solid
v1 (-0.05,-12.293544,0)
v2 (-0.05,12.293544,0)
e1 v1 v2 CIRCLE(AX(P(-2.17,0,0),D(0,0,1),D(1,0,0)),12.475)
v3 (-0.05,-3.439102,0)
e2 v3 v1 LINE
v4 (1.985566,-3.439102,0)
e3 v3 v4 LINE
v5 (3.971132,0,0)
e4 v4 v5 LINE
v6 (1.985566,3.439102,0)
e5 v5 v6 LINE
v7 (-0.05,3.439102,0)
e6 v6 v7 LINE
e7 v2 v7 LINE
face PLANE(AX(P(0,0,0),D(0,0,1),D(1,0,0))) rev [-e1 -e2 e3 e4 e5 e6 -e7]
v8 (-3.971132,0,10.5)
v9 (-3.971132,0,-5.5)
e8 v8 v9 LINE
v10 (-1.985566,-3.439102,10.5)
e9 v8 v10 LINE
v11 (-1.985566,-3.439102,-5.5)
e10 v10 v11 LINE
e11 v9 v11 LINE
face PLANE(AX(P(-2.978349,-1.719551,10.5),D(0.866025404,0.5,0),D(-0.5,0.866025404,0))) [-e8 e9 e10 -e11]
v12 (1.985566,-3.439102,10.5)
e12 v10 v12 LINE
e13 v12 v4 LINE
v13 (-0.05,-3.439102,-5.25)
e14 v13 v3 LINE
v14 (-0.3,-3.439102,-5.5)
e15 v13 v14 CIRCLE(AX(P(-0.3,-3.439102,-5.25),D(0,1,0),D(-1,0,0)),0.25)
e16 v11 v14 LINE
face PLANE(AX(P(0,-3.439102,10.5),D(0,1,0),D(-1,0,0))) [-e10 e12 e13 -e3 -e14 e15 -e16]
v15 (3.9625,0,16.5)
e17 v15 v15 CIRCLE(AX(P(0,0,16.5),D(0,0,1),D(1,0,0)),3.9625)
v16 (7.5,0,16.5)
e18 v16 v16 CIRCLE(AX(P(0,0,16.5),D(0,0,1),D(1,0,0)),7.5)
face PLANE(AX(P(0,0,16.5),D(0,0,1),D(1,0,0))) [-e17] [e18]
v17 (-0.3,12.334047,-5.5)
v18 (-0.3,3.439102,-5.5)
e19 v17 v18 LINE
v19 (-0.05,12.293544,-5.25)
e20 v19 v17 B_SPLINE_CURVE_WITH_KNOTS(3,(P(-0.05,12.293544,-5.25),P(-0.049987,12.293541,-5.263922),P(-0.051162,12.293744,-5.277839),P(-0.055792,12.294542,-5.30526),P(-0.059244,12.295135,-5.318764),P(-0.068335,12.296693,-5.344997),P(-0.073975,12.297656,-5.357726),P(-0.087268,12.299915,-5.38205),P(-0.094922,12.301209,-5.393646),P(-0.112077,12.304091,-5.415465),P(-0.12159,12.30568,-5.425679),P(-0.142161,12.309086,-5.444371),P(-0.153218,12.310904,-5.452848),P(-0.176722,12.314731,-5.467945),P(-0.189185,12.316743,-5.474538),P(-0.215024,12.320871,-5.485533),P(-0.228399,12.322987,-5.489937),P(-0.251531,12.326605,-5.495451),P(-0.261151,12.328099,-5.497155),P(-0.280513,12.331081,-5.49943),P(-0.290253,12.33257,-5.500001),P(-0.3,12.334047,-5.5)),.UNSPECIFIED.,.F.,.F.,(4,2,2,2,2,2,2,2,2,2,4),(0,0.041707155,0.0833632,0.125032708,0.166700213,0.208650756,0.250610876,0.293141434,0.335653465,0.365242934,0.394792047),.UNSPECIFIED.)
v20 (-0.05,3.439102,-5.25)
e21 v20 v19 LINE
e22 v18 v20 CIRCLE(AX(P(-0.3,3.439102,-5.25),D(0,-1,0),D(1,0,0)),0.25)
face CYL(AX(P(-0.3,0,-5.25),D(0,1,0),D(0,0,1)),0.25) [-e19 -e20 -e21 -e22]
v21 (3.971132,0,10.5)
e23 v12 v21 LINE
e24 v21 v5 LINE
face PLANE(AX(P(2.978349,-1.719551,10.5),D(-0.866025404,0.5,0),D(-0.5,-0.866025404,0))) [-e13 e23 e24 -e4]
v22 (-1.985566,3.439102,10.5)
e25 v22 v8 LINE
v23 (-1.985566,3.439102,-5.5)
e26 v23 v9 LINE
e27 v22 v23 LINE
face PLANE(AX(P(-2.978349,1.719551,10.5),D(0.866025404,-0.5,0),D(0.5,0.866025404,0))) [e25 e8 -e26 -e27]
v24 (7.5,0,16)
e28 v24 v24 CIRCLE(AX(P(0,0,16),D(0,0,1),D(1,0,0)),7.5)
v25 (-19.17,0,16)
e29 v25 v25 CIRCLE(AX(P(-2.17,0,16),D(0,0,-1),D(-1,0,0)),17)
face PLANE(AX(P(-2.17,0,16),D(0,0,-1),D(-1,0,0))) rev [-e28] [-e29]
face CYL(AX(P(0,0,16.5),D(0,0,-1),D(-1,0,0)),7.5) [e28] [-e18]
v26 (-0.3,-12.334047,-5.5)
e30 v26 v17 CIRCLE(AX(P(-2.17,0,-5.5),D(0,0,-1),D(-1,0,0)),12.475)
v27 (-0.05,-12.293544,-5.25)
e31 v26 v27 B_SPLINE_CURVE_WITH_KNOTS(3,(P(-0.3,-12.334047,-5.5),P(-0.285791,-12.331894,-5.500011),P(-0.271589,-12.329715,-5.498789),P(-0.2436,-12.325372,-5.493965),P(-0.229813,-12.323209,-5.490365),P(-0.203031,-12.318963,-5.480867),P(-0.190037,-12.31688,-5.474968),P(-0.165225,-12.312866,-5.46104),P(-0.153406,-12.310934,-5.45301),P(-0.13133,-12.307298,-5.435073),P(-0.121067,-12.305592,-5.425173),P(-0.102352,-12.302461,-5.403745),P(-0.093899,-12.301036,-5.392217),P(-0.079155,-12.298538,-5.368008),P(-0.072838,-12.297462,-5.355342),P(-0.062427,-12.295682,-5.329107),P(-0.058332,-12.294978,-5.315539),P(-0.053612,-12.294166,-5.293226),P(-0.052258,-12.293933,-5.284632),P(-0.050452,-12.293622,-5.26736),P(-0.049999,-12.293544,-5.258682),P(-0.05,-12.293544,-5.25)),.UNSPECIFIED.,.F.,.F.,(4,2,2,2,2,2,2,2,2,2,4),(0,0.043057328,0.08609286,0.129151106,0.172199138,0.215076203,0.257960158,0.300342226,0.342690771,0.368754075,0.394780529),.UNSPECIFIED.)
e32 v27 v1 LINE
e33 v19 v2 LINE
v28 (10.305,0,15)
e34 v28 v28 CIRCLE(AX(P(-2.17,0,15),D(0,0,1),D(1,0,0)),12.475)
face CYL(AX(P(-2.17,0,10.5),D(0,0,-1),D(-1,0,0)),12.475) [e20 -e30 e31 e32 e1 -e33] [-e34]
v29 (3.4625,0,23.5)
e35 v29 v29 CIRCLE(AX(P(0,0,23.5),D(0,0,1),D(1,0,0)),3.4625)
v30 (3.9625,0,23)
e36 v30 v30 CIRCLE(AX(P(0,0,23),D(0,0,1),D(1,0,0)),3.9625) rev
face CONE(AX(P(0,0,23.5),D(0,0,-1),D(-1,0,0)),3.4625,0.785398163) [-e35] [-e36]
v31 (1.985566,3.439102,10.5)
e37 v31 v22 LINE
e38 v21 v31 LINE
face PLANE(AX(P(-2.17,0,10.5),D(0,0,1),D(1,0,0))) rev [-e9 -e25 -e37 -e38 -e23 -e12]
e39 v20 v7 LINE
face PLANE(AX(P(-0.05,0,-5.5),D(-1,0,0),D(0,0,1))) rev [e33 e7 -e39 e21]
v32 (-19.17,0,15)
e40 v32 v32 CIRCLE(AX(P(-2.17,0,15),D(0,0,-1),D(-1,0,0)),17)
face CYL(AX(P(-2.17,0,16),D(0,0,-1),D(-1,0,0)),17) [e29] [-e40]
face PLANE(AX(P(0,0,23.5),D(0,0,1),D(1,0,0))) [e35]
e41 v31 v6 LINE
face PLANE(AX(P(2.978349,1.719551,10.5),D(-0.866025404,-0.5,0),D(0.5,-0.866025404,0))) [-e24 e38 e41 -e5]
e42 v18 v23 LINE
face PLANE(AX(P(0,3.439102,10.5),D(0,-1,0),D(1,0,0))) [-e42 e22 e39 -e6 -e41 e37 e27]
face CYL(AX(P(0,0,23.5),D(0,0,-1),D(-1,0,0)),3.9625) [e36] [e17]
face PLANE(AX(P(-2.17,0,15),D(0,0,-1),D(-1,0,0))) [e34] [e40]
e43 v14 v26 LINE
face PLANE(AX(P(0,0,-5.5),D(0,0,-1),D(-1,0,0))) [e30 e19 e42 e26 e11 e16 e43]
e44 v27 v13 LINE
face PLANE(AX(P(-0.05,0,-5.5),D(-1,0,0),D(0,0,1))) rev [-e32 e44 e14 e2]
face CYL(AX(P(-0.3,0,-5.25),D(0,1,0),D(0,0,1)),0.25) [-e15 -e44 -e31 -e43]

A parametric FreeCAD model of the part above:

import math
import FreeCAD as App
import Part
import Sketcher
Q = App.Units.Quantity


def edges_at(feature, points):
    """Names of the edges that pass closest to the given points."""
    edges = feature.Shape.Edges
    near = lambda p: min(range(len(edges)), key=lambda i: edges[i].distToShape(Part.Vertex(*p))[0])
    return sorted({f"Edge{near(p) + 1}" for p in points})

doc = App.newDocument("Part")
body = doc.addObject("PartDesign::Body", "Body")

sketch1 = body.newObject("Sketcher::SketchObject", "Sketch")
sketch1.AttachmentSupport = (doc.getObject("XY_Plane"), [""])
sketch1.MapMode = "FlatFace"
sketch1.addGeometry(Part.Circle(App.Vector(-2.2, 0, 0), App.Vector(0, 0, 1), 12.5), False)
sketch1.addGeometry(Part.LineSegment(App.Vector(-4, 0, 0), App.Vector(-2, 3.4, 0)), False)
sketch1.addGeometry(Part.LineSegment(App.Vector(-2, 3.4, 0), App.Vector(2, 3.4, 0)), False)
sketch1.addGeometry(Part.LineSegment(App.Vector(2, 3.4, 0), App.Vector(4, 0, 0)), False)
sketch1.addGeometry(Part.LineSegment(App.Vector(4, 0, 0), App.Vector(2, -3.4, 0)), False)
sketch1.addGeometry(Part.LineSegment(App.Vector(2, -3.4, 0), App.Vector(-2, -3.4, 0)), False)
sketch1.addGeometry(Part.LineSegment(App.Vector(-2, -3.4, 0), App.Vector(-4, 0, 0)), False)
sketch1.addConstraint(Sketcher.Constraint("Coincident", 1, 2, 2, 1))
sketch1.addConstraint(Sketcher.Constraint("Coincident", 2, 2, 3, 1))
sketch1.addConstraint(Sketcher.Constraint("Coincident", 3, 2, 4, 1))
sketch1.addConstraint(Sketcher.Constraint("Coincident", 4, 2, 5, 1))
sketch1.addConstraint(Sketcher.Constraint("Coincident", 5, 2, 6, 1))
sketch1.addConstraint(Sketcher.Constraint("Coincident", 6, 2, 1, 1))
sketch1.addConstraint(Sketcher.Constraint("Horizontal", 2))
sketch1.addConstraint(Sketcher.Constraint("Horizontal", 5))
sketch1.addConstraint(Sketcher.Constraint("Symmetric", 1, 2, 4, 2, -1, 1))
sketch1.addConstraint(Sketcher.Constraint("Symmetric", 3, 2, 6, 2, -1, 1))
sketch1.addConstraint(Sketcher.Constraint("PointOnObject", 0, 3, -1))
sketch1.addConstraint(Sketcher.Constraint("PointOnObject", 3, 2, -1))
sketch1.addConstraint(Sketcher.Constraint("Parallel", 3, 6))
sketch1.addConstraint(Sketcher.Constraint("Vertical", 2, 2, 4, 2))
sketch1.addConstraint(Sketcher.Constraint("Diameter", 0, 24.95))
sketch1.addConstraint(Sketcher.Constraint("Angle", 1, Q("60 deg")))
sketch1.addConstraint(Sketcher.Constraint("DistanceX", 0, 3, -1, 1, 2.17))
sketch1.addConstraint(Sketcher.Constraint("DistanceY", -1, 1, 1, 2, 3.439102))
sketch1.addConstraint(Sketcher.Constraint("DistanceX", 1, 2, 3, 2, 5.956699))
pad1 = body.newObject("PartDesign::Pad", "Pad")
pad1.Profile = sketch1
pad1.Length = 10.5

sketch2 = body.newObject("Sketcher::SketchObject", "Sketch001")
sketch2.AttachmentSupport = (doc.getObject("XY_Plane"), [""])
sketch2.MapMode = "FlatFace"
sketch2.AttachmentOffset = App.Placement(App.Vector(0, 0, 10.5), App.Rotation())
sketch2.addGeometry(Part.Circle(App.Vector(-2, 0, 0), App.Vector(0, 0, 1), 12), False)
sketch2.addConstraint(Sketcher.Constraint("PointOnObject", 0, 3, -1))
sketch2.addConstraint(Sketcher.Constraint("Diameter", 0, 24.95))
sketch2.addConstraint(Sketcher.Constraint("DistanceX", 0, 3, -1, 1, 2.17))
pad2 = body.newObject("PartDesign::Pad", "Pad001")
pad2.Profile = sketch2
pad2.Length = 4.5

sketch3 = body.newObject("Sketcher::SketchObject", "Sketch002")
sketch3.AttachmentSupport = (doc.getObject("XY_Plane"), [""])
sketch3.MapMode = "FlatFace"
sketch3.AttachmentOffset = App.Placement(App.Vector(0, 0, 15), App.Rotation())
sketch3.addGeometry(Part.Circle(App.Vector(-2, 0, 0), App.Vector(0, 0, 1), 17), False)
sketch3.addConstraint(Sketcher.Constraint("PointOnObject", 0, 3, -1))
sketch3.addConstraint(Sketcher.Constraint("Diameter", 0, 34.0))
sketch3.addConstraint(Sketcher.Constraint("DistanceX", 0, 3, -1, 1, 2.17))
pad3 = body.newObject("PartDesign::Pad", "Pad002")
pad3.Profile = sketch3
pad3.Length = 1

sketch4 = body.newObject("Sketcher::SketchObject", "Sketch003")
sketch4.AttachmentSupport = (doc.getObject("XY_Plane"), [""])
sketch4.MapMode = "FlatFace"
sketch4.AttachmentOffset = App.Placement(App.Vector(0, 0, 16), App.Rotation())
sketch4.addGeometry(Part.Circle(App.Vector(0, 0, 0), App.Vector(0, 0, 1), 8), False)
sketch4.addConstraint(Sketcher.Constraint("Coincident", 0, 3, -1, 1))
sketch4.addConstraint(Sketcher.Constraint("Diameter", 0, 15.0))
pad4 = body.newObject("PartDesign::Pad", "Pad003")
pad4.Profile = sketch4
pad4.Length = 0.5

sketch5 = body.newObject("Sketcher::SketchObject", "Sketch004")
sketch5.AttachmentSupport = (doc.getObject("XY_Plane"), [""])
sketch5.MapMode = "FlatFace"
sketch5.AttachmentOffset = App.Placement(App.Vector(0, 0, 16.5), App.Rotation())
sketch5.addGeometry(Part.Circle(App.Vector(0, 0, 0), App.Vector(0, 0, 1), 4), False)
sketch5.addConstraint(Sketcher.Constraint("Coincident", 0, 3, -1, 1))
sketch5.addConstraint(Sketcher.Constraint("Diameter", 0, 7.925))
pad5 = body.newObject("PartDesign::Pad", "Pad004")
pad5.Profile = sketch5
pad5.Length = 7

sketch6 = body.newObject("Sketcher::SketchObject", "Sketch005")
sketch6.AttachmentSupport = (doc.getObject("XY_Plane"), [""])
sketch6.MapMode = "FlatFace"
sketch6.AttachmentOffset = App.Placement(App.Vector(0, 0, -5.5), App.Rotation())
sketch6.addGeometry(Part.ArcOfCircle(Part.Circle(App.Vector(-2.2, 0, 0), App.Vector(0, 0, 1), 12.5), math.radians(80), math.radians(180)), False)
sketch6.addGeometry(Part.LineSegment(App.Vector(-0.1, 12.3, 0), App.Vector(-0.1, 3.4, 0)), False)
sketch6.addGeometry(Part.LineSegment(App.Vector(-0.1, 3.4, 0), App.Vector(-2, 3.4, 0)), False)
sketch6.addGeometry(Part.LineSegment(App.Vector(-2, 3.4, 0), App.Vector(-4, 0, 0)), False)
sketch6.addGeometry(Part.LineSegment(App.Vector(-4, 0, 0), App.Vector(-2, -3.4, 0)), False)
sketch6.addGeometry(Part.LineSegment(App.Vector(-2, -3.4, 0), App.Vector(-0.1, -3.4, 0)), False)
sketch6.addGeometry(Part.LineSegment(App.Vector(-0.1, -3.4, 0), App.Vector(-0.1, -12.3, 0)), False)
sketch6.addGeometry(Part.ArcOfCircle(Part.Circle(App.Vector(-2.2, 0, 0), App.Vector(0, 0, 1), 12.5), math.radians(180), math.radians(280)), False)
sketch6.addConstraint(Sketcher.Constraint("Coincident", 0, 1, 1, 1))
sketch6.addConstraint(Sketcher.Constraint("Coincident", 1, 2, 2, 1))
sketch6.addConstraint(Sketcher.Constraint("Coincident", 2, 2, 3, 1))
sketch6.addConstraint(Sketcher.Constraint("Coincident", 3, 2, 4, 1))
sketch6.addConstraint(Sketcher.Constraint("Coincident", 4, 2, 5, 1))
sketch6.addConstraint(Sketcher.Constraint("Coincident", 5, 2, 6, 1))
sketch6.addConstraint(Sketcher.Constraint("Coincident", 6, 2, 7, 2))
sketch6.addConstraint(Sketcher.Constraint("Tangent", 7, 1, 0, 2))
sketch6.addConstraint(Sketcher.Constraint("Vertical", 1))
sketch6.addConstraint(Sketcher.Constraint("Horizontal", 2))
sketch6.addConstraint(Sketcher.Constraint("Horizontal", 5))
sketch6.addConstraint(Sketcher.Constraint("Vertical", 6))
sketch6.addConstraint(Sketcher.Constraint("Equal", 0, 7))
sketch6.addConstraint(Sketcher.Constraint("Symmetric", 2, 2, 4, 2, -1))
sketch6.addConstraint(Sketcher.Constraint("Symmetric", 0, 1, 6, 2, -1))
sketch6.addConstraint(Sketcher.Constraint("PointOnObject", 3, 2, -1))
sketch6.addConstraint(Sketcher.Constraint("PointOnObject", 7, 1, -1))
sketch6.addConstraint(Sketcher.Constraint("Angle", 3, Q("-120 deg")))
sketch6.addConstraint(Sketcher.Constraint("Radius", 0, 12.475))
sketch6.addConstraint(Sketcher.Constraint("DistanceX", 0, 3, -1, 1, 2.17))
sketch6.addConstraint(Sketcher.Constraint("DistanceX", 0, 1, -1, 1, 0.05))
sketch6.addConstraint(Sketcher.Constraint("DistanceY", -1, 1, 1, 2, 3.439102))
sketch6.addConstraint(Sketcher.Constraint("DistanceX", 2, 2, 2, 1, 1.935566))
pad6 = body.newObject("PartDesign::Pad", "Pad005")
pad6.Profile = sketch6
pad6.Length = 5.5
doc.recompute()

chamfer = body.newObject("PartDesign::Chamfer", "Chamfer")
chamfer.Base = (pad6, edges_at(pad6, [(-3.962, 0, 23.5)]))
chamfer.Size = 0.5
doc.recompute()

fillet = body.newObject("PartDesign::Fillet", "Fillet")
fillet.Base = (chamfer, edges_at(chamfer, [(-0.05, 7.866, -5.5), (-0.05, -7.866, -5.5)]))
fillet.Radius = 0.25

doc.recompute()
